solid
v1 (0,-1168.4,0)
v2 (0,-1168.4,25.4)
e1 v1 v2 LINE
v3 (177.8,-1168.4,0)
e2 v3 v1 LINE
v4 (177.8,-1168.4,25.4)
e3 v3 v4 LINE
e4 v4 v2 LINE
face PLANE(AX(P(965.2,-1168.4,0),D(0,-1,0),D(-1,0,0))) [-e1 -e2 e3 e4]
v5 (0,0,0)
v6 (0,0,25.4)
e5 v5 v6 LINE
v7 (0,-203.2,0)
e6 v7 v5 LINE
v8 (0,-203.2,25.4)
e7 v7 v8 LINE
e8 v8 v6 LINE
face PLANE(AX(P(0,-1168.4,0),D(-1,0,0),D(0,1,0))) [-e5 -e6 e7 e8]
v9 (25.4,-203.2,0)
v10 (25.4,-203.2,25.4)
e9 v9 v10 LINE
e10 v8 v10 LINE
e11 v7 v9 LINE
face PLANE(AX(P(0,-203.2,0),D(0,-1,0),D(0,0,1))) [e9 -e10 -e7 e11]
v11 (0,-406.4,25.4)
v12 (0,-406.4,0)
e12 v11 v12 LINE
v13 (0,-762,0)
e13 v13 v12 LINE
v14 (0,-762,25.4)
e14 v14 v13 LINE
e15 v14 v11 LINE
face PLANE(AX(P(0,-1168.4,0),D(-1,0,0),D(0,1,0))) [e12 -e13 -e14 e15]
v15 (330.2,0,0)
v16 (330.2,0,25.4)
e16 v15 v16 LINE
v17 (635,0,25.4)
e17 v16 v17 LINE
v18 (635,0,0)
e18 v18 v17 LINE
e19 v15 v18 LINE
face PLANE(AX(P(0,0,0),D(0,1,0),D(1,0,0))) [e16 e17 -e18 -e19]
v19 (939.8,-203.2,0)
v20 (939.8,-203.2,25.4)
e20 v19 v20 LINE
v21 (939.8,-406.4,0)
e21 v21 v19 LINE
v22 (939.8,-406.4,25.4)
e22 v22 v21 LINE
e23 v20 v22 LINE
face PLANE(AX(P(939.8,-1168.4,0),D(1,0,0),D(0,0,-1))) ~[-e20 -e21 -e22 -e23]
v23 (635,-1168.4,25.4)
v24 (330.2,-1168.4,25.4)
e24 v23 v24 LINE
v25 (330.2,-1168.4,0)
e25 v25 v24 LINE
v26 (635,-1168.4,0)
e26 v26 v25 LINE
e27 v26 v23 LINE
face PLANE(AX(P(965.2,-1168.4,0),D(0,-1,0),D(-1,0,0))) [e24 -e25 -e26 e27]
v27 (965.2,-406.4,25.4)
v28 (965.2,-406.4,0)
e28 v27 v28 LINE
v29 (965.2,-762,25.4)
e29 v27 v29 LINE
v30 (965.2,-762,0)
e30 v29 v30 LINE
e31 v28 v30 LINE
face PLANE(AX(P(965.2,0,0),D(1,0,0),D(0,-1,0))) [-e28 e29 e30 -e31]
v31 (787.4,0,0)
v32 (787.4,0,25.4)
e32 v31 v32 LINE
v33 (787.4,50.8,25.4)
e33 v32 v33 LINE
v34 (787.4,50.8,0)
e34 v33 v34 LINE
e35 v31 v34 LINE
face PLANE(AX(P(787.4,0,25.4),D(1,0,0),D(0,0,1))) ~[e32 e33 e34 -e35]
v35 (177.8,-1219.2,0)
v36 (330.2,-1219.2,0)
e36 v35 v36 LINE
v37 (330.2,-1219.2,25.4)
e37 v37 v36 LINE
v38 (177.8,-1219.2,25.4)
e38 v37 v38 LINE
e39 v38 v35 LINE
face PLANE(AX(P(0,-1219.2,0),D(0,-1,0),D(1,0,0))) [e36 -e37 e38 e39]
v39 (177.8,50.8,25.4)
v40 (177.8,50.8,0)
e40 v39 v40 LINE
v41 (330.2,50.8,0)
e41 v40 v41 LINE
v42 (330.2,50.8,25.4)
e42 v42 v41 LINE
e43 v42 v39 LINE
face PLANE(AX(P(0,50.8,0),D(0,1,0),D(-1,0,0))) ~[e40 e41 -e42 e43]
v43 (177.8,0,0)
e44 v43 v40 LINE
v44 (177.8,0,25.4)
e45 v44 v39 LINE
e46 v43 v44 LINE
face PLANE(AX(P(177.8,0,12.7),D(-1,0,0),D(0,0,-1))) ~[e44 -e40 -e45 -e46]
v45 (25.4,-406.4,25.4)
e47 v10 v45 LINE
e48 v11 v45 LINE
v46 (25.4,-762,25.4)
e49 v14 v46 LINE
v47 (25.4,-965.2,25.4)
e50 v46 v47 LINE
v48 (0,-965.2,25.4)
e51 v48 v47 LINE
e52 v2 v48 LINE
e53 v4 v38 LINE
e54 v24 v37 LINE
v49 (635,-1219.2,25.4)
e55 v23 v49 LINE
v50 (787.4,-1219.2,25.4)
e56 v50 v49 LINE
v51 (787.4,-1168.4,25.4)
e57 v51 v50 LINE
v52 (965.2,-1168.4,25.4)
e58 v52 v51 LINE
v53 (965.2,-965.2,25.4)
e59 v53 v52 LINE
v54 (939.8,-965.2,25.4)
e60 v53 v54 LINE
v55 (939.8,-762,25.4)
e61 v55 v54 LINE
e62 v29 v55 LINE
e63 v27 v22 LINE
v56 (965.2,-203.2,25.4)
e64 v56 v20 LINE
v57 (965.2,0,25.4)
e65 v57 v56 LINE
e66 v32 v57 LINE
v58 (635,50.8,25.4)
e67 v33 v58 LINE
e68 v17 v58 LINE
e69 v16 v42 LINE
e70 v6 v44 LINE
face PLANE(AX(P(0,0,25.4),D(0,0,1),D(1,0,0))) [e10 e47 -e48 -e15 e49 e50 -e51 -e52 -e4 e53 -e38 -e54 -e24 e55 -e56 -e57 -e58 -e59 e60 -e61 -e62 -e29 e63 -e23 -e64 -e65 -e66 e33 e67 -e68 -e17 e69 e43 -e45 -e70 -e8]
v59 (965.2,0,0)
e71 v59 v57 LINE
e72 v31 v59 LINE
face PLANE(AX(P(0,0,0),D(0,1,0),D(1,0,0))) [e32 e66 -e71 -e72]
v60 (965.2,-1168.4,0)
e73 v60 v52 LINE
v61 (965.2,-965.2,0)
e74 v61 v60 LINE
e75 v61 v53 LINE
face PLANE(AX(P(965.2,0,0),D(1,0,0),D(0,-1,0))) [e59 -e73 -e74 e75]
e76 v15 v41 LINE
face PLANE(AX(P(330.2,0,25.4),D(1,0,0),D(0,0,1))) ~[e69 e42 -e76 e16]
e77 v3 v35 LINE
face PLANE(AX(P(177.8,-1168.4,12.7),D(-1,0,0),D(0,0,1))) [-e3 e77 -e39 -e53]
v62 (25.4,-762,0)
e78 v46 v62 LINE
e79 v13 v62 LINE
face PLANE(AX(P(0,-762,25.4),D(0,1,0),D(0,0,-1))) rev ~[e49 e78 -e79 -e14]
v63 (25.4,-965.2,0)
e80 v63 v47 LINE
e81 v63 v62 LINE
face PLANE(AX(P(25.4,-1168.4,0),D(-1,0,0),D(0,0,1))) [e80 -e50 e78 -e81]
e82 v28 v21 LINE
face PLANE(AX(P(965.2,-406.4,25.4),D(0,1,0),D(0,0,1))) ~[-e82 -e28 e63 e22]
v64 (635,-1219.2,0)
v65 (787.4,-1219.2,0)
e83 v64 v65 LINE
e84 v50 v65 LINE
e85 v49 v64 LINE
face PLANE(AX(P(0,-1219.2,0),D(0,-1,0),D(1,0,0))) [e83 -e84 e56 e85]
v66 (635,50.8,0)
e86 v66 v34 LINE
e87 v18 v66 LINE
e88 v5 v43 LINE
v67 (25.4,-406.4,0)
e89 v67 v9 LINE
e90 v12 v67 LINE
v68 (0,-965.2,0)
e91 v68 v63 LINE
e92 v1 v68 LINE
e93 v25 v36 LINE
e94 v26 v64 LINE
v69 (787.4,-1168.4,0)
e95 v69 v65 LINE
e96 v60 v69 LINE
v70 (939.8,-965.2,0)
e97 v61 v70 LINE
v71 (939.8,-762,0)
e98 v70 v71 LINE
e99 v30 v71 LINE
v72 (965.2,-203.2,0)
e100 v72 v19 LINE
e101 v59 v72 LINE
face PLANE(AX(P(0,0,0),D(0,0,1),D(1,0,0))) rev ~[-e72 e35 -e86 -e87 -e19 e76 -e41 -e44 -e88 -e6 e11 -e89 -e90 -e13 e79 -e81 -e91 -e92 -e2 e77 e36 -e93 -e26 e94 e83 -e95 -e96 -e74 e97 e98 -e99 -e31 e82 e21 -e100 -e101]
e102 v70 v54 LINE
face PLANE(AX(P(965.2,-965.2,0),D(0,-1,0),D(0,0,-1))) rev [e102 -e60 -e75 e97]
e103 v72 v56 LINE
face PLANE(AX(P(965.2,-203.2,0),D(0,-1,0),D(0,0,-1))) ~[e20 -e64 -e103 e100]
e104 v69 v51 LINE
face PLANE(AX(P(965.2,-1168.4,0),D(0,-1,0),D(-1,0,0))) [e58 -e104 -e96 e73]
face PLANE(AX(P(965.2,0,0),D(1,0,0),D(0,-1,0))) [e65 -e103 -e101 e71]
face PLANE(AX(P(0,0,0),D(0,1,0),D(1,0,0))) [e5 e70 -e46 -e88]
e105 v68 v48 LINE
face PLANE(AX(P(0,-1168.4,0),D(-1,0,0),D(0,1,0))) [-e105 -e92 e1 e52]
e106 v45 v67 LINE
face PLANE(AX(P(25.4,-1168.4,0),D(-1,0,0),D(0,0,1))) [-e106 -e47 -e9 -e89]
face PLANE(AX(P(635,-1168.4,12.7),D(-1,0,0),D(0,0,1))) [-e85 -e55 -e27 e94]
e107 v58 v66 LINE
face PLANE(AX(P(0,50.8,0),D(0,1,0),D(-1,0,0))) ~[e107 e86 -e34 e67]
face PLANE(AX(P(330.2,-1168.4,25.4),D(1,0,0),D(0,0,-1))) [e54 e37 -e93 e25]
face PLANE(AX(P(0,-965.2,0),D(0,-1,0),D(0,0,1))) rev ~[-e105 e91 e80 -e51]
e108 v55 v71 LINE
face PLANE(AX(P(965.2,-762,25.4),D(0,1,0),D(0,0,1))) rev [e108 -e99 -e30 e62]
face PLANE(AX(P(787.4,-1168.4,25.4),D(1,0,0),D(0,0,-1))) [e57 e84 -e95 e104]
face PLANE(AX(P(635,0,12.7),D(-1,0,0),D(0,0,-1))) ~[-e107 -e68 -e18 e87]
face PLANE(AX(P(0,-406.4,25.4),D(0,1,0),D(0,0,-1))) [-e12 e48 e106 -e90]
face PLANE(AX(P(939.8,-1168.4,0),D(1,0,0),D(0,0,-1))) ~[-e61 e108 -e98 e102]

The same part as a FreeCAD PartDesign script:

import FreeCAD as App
import Part
import Sketcher
from FreeCAD import Vector
Q = App.Units.Quantity


def add_polygon(sketch, points):
    """Adds a closed chain of lines whose ends are joined by coincident constraints."""
    first, n = sketch.GeometryCount, len(points)
    for a, b in zip(points, points[1:] + points[:1]):
        sketch.addGeometry(Part.LineSegment(App.Vector(*a, 0), App.Vector(*b, 0)), False)
    for i in range(n):
        sketch.addConstraint(Sketcher.Constraint("Coincident", first + i, 2, first + (i + 1) % n, 1))

doc = App.newDocument("Part")
body = doc.addObject("PartDesign::Body", "Body")

# Sketch on XY plane
sketch1 = body.newObject("Sketcher::SketchObject", "Sketch")
sketch1.AttachmentSupport = (doc.getObject("XY_Plane"), [""])
sketch1.MapMode = "FlatFace"
add_polygon(sketch1, [(965, 0), (0, 0), (0, -1168), (965, -1168)])  # lines 0-3
sketch1.addConstraint([
    Sketcher.Constraint("Horizontal", 0),
    Sketcher.Constraint("Vertical", 1),
    Sketcher.Constraint("Horizontal", 2),
    Sketcher.Constraint("Vertical", 3),
    Sketcher.Constraint("Coincident", 0, 2, -1, 1),
    Sketcher.Constraint("DistanceX", 0, 2, 0, 1, Q("38 in")),
    Sketcher.Constraint("DistanceY", 1, 2, 1, 1, Q("46 in")),
])
pad1 = body.newObject("PartDesign::Pad", "Pad")
pad1.Profile = sketch1
pad1.Length = Q("1 in")

# Sketch on XZ plane
sketch2 = body.newObject("Sketcher::SketchObject", "Sketch001")
sketch2.AttachmentSupport = (doc.getObject("XZ_Plane"), [""])
sketch2.MapMode = "FlatFace"
sketch2.AttachmentOffset = App.Placement(Vector(0, 0, 46 * 25.4), App.Rotation())
add_polygon(sketch2, [(787, 25), (635, 25), (635, 0), (787, 0)])  # lines 0-3
add_polygon(sketch2, [(330, 25), (178, 25), (178, 0), (330, 0)])  # lines 4-7
sketch2.addConstraint([
    Sketcher.Constraint("Horizontal", 0),
    Sketcher.Constraint("Vertical", 1),
    Sketcher.Constraint("Horizontal", 2),
    Sketcher.Constraint("Vertical", 3),
    Sketcher.Constraint("Horizontal", 4),
    Sketcher.Constraint("Vertical", 5),
    Sketcher.Constraint("Horizontal", 6),
    Sketcher.Constraint("Vertical", 7),
    Sketcher.Constraint("PointOnObject", 1, 2, -1),
    Sketcher.Constraint("PointOnObject", 5, 2, -1),
    Sketcher.Constraint("Horizontal", 3, 2, 4, 2),
    Sketcher.Constraint("Equal", 2, 4),
    Sketcher.Constraint("DistanceX", 0, 2, 0, 1, Q("6 in")),
    Sketcher.Constraint("DistanceX", -1, 1, 4, 2, Q("7 in")),
    Sketcher.Constraint("DistanceY", 1, 2, 1, 1, Q("1 in")),
    Sketcher.Constraint("DistanceX", -1, 1, 0, 2, Q("25 in")),
])
pad2 = body.newObject("PartDesign::Pad", "Pad001")
pad2.Profile = sketch2
pad2.Length = Q("2 in")

# Sketch on YZ plane
sketch3 = body.newObject("Sketcher::SketchObject", "Sketch002")
sketch3.AttachmentSupport = (doc.getObject("YZ_Plane"), [""])
sketch3.MapMode = "FlatFace"
add_polygon(sketch3, [(-762, 0), (-965, 0), (-965, 25), (-762, 25)])  # lines 0-3
add_polygon(sketch3, [(-203, 0), (-406, 0), (-406, 25), (-203, 25)])  # lines 4-7
sketch3.addConstraint([
    Sketcher.Constraint("Horizontal", 0),
    Sketcher.Constraint("Vertical", 1),
    Sketcher.Constraint("Horizontal", 2),
    Sketcher.Constraint("Vertical", 3),
    Sketcher.Constraint("Horizontal", 4),
    Sketcher.Constraint("Vertical", 5),
    Sketcher.Constraint("Horizontal", 6),
    Sketcher.Constraint("Vertical", 7),
    Sketcher.Constraint("PointOnObject", 0, 2, -1),
    Sketcher.Constraint("PointOnObject", 4, 2, -1),
    Sketcher.Constraint("Horizontal", 2, 2, 5, 2),
    Sketcher.Constraint("Equal", 2, 4),
    Sketcher.Constraint("DistanceX", 0, 2, 0, 1, Q("8 in")),
    Sketcher.Constraint("DistanceX", 6, 2, -1, 1, Q("8 in")),
    Sketcher.Constraint("DistanceX", 3, 2, 4, 2, Q("14 in")),
    Sketcher.Constraint("DistanceY", 1, 1, 1, 2, Q("1 in")),
])
pocket1 = body.newObject("PartDesign::Pocket", "Pocket")
pocket1.Profile = sketch3
pocket1.Length = Q("1 in")
pocket1.Reversed = True
doc.recompute()

datumplane = body.newObject("PartDesign::Plane", "DatumPlane")
datumplane.AttachmentSupport = (doc.getObject("YZ_Plane"), [""])
datumplane.MapMode = "FlatFace"
datumplane.AttachmentOffset = App.Placement(Vector(0, 0, 19 * 25.4), App.Rotation())
mirrored = body.newObject("PartDesign::Mirrored", "Mirrored")
mirrored.Originals = [pocket1]
mirrored.MirrorPlane = (datumplane, [""])
body.Tip = mirrored
doc.recompute()

datumplane2 = body.newObject("PartDesign::Plane", "DatumPlane001")
datumplane2.AttachmentSupport = (doc.getObject("XZ_Plane"), [""])
datumplane2.MapMode = "FlatFace"
datumplane2.AttachmentOffset = App.Placement(Vector(0, 0, 23 * 25.4), App.Rotation())
mirrored2 = body.newObject("PartDesign::Mirrored", "Mirrored001")
mirrored2.Originals = [pad2]
mirrored2.MirrorPlane = (datumplane2, [""])
body.Tip = mirrored2

doc.recompute()
